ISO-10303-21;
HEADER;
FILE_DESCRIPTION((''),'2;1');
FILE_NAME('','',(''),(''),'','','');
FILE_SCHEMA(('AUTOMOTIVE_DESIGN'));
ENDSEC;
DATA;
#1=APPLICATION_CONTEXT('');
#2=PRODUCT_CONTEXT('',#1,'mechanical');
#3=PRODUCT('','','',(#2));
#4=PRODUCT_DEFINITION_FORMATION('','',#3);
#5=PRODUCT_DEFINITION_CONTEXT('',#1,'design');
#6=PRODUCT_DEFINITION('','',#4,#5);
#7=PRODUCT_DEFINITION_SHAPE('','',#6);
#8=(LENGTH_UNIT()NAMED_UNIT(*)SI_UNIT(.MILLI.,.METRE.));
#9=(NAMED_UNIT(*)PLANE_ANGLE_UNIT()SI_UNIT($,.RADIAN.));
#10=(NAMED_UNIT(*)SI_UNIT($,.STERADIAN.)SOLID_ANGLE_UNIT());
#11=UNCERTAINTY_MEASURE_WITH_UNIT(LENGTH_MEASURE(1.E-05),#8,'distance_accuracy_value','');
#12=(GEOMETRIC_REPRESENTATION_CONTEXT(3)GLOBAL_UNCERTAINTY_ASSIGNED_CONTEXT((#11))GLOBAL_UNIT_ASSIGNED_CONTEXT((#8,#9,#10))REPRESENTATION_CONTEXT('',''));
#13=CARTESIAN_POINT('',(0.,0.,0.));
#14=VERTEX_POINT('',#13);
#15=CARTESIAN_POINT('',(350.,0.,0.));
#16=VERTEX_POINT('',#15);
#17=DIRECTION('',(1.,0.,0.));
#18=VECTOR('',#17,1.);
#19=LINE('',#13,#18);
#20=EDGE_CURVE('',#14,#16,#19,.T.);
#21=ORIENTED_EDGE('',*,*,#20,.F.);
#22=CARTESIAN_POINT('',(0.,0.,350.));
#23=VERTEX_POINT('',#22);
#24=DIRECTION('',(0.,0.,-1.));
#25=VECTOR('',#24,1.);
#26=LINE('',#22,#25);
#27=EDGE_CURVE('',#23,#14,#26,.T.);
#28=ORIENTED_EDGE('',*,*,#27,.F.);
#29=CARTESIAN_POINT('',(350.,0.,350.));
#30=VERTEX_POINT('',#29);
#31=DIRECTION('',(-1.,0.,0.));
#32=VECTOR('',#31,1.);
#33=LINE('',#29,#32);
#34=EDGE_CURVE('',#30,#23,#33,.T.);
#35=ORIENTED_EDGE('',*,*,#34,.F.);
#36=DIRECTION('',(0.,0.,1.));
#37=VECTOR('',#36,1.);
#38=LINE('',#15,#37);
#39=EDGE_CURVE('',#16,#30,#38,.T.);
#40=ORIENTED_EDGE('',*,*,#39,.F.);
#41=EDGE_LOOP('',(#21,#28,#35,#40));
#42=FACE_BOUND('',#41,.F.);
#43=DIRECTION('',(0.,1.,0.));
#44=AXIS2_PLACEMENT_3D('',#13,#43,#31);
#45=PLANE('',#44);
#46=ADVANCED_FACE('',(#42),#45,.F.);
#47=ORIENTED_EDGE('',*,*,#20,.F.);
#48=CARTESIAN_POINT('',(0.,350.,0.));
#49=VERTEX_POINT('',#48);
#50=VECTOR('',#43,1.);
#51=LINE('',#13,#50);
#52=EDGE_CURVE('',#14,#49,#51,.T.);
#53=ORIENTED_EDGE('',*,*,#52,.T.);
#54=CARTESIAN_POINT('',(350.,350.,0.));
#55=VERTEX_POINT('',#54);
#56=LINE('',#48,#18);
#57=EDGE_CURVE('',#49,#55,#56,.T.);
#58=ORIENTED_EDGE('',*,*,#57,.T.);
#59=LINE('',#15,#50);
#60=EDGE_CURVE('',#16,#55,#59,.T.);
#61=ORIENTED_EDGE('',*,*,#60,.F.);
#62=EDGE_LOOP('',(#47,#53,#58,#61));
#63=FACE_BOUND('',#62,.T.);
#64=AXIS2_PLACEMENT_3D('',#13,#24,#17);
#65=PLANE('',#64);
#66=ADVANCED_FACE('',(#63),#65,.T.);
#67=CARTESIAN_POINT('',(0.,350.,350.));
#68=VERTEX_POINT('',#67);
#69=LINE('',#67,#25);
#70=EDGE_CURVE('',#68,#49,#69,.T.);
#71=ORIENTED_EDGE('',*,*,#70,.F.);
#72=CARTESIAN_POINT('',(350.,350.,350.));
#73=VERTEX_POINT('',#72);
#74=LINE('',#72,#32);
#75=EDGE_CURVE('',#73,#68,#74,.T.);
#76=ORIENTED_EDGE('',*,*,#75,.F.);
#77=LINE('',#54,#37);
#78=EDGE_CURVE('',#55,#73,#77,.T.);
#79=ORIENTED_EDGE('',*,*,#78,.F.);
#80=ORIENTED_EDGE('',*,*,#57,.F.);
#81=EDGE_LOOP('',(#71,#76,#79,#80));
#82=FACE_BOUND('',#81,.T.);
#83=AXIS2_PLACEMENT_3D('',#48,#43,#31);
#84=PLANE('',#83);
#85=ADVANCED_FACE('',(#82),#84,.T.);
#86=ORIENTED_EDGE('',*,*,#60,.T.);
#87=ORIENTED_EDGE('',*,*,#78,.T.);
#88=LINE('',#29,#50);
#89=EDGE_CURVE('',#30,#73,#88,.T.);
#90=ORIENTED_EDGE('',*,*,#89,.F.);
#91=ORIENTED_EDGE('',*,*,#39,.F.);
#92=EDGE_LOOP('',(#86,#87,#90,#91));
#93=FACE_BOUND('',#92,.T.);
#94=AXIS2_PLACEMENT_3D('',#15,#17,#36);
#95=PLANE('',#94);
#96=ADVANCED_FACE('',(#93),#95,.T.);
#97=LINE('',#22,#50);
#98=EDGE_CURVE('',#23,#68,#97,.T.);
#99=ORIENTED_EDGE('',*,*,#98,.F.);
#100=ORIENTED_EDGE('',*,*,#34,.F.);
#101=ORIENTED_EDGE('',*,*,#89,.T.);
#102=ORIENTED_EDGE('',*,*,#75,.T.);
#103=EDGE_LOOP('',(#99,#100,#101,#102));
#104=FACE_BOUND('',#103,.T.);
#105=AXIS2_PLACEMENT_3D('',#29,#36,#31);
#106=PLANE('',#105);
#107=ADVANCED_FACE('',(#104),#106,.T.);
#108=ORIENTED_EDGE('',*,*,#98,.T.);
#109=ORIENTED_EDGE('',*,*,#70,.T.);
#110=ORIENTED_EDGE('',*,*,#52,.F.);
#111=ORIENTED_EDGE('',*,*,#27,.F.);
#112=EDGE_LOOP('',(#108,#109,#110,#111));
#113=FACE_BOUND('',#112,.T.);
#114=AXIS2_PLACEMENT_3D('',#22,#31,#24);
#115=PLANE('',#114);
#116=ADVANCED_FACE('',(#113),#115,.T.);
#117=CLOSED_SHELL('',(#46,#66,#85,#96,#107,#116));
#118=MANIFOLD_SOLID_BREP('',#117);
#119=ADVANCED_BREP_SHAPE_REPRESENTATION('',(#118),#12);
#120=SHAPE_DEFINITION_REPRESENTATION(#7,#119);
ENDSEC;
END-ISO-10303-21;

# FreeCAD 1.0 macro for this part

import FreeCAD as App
import Part
import Sketcher
Q = App.Units.Quantity


def add_polygon(sketch, points):
    """Adds a closed chain of lines whose ends are joined by coincident constraints."""
    first, n = sketch.GeometryCount, len(points)
    for a, b in zip(points, points[1:] + points[:1]):
        sketch.addGeometry(Part.LineSegment(App.Vector(*a, 0), App.Vector(*b, 0)), False)
    for i in range(n):
        sketch.addConstraint(Sketcher.Constraint("Coincident", first + i, 2, first + (i + 1) % n, 1))

doc = App.newDocument("Part")
body = doc.addObject("PartDesign::Body", "Body")

# Sketch on XZ plane
sketch1 = body.newObject("Sketcher::SketchObject", "Sketch")
sketch1.AttachmentSupport = (doc.getObject("XZ_Plane"), [""])
sketch1.MapMode = "FlatFace"
add_polygon(sketch1, [(350, 0), (0, 0), (0, 350), (350, 350)])  # lines 0-3
sketch1.addConstraint([
    Sketcher.Constraint("Horizontal", 0),
    Sketcher.Constraint("Vertical", 1),
    Sketcher.Constraint("Horizontal", 2),
    Sketcher.Constraint("Vertical", 3),
    Sketcher.Constraint("Coincident", 0, 2, -1, 1),
    Sketcher.Constraint("Equal", 2, 1),
    Sketcher.Constraint("DistanceX", 0, 2, 0, 1, Q("350 mm")),
])
pad1 = body.newObject("PartDesign::Pad", "Pad")
pad1.Profile = sketch1
pad1.Length = 350
pad1.Reversed = True

doc.recompute()
